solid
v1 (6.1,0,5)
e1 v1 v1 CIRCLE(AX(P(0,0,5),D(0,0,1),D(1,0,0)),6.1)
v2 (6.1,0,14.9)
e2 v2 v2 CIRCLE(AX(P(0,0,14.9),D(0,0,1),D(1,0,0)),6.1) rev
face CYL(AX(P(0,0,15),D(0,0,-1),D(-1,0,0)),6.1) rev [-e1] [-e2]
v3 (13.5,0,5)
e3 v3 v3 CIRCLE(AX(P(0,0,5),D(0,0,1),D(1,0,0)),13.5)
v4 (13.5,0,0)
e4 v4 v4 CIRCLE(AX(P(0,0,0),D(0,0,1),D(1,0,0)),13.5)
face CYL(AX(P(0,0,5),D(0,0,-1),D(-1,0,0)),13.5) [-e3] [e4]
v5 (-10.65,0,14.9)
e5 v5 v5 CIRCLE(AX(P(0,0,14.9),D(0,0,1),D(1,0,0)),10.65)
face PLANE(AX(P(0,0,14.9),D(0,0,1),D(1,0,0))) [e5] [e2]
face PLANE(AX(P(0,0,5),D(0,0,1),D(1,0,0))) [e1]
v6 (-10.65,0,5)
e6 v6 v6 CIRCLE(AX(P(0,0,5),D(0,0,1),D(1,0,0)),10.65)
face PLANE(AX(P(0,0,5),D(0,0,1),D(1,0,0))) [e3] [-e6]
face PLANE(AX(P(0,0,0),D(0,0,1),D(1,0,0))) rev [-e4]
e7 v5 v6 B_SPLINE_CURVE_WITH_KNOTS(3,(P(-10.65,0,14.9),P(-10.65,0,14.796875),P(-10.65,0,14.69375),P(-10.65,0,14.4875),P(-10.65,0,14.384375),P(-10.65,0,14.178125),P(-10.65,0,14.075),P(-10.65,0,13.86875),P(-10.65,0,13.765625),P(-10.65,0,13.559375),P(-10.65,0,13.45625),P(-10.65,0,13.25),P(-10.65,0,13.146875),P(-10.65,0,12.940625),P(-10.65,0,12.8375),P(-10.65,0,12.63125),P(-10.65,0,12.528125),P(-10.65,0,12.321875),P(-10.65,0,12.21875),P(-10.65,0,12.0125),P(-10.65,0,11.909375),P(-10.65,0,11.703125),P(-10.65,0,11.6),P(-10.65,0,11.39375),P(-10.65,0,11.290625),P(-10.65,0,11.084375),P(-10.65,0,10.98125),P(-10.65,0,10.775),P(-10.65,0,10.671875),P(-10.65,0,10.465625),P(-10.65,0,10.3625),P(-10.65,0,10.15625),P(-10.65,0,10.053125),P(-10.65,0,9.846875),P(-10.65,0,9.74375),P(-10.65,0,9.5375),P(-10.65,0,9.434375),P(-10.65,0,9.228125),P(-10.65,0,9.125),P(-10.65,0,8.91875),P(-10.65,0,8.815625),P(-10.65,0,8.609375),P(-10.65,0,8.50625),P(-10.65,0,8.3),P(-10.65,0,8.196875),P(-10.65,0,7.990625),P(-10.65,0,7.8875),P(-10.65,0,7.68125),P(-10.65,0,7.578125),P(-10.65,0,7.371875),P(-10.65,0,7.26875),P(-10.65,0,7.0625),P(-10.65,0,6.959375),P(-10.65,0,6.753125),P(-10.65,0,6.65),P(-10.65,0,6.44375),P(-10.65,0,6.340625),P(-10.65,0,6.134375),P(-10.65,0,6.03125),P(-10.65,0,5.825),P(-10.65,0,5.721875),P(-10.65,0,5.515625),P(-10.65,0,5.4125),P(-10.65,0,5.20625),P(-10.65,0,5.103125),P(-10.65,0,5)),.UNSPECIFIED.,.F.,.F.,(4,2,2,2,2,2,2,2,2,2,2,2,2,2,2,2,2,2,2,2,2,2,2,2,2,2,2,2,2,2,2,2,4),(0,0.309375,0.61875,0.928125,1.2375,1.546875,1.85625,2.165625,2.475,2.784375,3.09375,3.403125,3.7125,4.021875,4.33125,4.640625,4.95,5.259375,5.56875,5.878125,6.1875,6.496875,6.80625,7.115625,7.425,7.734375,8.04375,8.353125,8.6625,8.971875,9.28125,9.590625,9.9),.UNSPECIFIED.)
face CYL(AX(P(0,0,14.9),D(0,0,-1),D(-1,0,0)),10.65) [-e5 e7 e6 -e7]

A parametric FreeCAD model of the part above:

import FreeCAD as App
import Part
import Sketcher

V = App.Vector
Q = App.Units.Quantity

doc = App.newDocument("Part")
body = doc.addObject("PartDesign::Body", "Body")

sketch1 = doc.addObject("Sketcher::SketchObject", "Sketch")
body.addObject(sketch1)
sketch1.AttachmentSupport = (doc.XY_Plane, [""])
sketch1.MapMode = "FlatFace"
sketch1.addGeometry(Part.Circle(V(0, 0, 0), V(0, 0, 1), 14), False)
sketch1.addConstraint([
    Sketcher.Constraint("Coincident", 0, 3, -1, 1),
    Sketcher.Constraint("Diameter", 0, Q("27 mm")),
])
pad1 = doc.addObject("PartDesign::Pad", "Pad")
body.addObject(pad1)
pad1.Profile = sketch1
pad1.Length = 5

sketch2 = doc.addObject("Sketcher::SketchObject", "Sketch001")
body.addObject(sketch2)
sketch2.AttachmentSupport = (doc.XY_Plane, [""])
sketch2.MapMode = "FlatFace"
sketch2.AttachmentOffset = App.Placement(V(0, 0, 5), App.Rotation())
sketch2.addGeometry(Part.Circle(V(0, 0, 0), V(0, 0, 1), 11), False)
sketch2.addConstraint([
    Sketcher.Constraint("Coincident", 0, 3, -1, 1),
    Sketcher.Constraint("Diameter", 0, Q("21.3 mm")),
])
pad2 = doc.addObject("PartDesign::Pad", "Pad001")
body.addObject(pad2)
pad2.Profile = sketch2
pad2.Length = 9.9

sketch3 = doc.addObject("Sketcher::SketchObject", "Sketch002")
body.addObject(sketch3)
sketch3.AttachmentSupport = (doc.XY_Plane, [""])
sketch3.MapMode = "FlatFace"
sketch3.AttachmentOffset = App.Placement(V(0, 0, 5), App.Rotation())
sketch3.addGeometry(Part.Circle(V(0, 0, 0), V(0, 0, 1), 6), False)
sketch3.addConstraint([
    Sketcher.Constraint("Coincident", 0, 3, -1, 1),
    Sketcher.Constraint("Diameter", 0, Q("12.2 mm")),
])
pocket1 = doc.addObject("PartDesign::Pocket", "Pocket")
body.addObject(pocket1)
pocket1.Profile = sketch3
pocket1.Length = 10
pocket1.Reversed = True

doc.recompute()
